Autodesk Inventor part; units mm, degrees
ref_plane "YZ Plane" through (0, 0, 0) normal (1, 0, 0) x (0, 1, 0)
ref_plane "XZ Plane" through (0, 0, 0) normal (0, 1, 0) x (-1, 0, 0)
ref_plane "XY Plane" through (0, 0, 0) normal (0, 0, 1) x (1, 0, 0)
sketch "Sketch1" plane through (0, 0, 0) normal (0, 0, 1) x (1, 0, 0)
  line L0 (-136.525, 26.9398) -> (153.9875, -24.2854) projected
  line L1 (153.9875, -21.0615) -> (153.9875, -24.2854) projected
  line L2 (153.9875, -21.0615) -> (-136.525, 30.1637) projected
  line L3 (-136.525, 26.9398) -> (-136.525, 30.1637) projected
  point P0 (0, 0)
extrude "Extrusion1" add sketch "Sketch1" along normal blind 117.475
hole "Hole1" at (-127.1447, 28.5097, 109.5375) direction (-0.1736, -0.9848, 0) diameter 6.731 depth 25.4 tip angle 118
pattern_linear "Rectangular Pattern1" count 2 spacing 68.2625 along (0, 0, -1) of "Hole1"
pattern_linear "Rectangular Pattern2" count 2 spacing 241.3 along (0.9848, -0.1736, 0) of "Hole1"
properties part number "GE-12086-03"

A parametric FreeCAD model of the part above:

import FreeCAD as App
import Part
import Sketcher

V = App.Vector
Q = App.Units.Quantity


def add_polygon(sketch, points):
    """Adds a closed chain of lines whose ends are joined by coincident constraints."""
    first, n = sketch.GeometryCount, len(points)
    for a, b in zip(points, points[1:] + points[:1]):
        sketch.addGeometry(Part.LineSegment(App.Vector(*a, 0), App.Vector(*b, 0)), False)
    for i in range(n):
        sketch.addConstraint(Sketcher.Constraint("Coincident", first + i, 2, first + (i + 1) % n, 1))

doc = App.newDocument("Part")
body = doc.addObject("PartDesign::Body", "Body")

# Sketch on XY plane
sketch1 = body.newObject("Sketcher::SketchObject", "Sketch")
sketch1.AttachmentSupport = (doc.getObject("XY_Plane"), [""])
sketch1.MapMode = "FlatFace"
add_polygon(sketch1, [(-136.5, 30.2), (-136.5, 26.9), (154, -24.3), (154, -21.1)])  # lines 0-3
sketch1.addConstraint(Sketcher.Constraint("Vertical", 0))
sketch1.addConstraint(Sketcher.Constraint("Vertical", 2))
sketch1.addConstraint(Sketcher.Constraint("Parallel", 1, 3))
sketch1.addConstraint(Sketcher.Constraint("Angle", 1, Q("-10 deg")))
sketch1.addConstraint(Sketcher.Constraint("DistanceX", 0, 2, -1, 1, Q("5.375 in")))
sketch1.addConstraint(Sketcher.Constraint("DistanceX", -1, 1, 1, 2, Q("6.0625 in")))
sketch1.addConstraint(Sketcher.Constraint("DistanceY", 0, 2, 0, 1, 3.224))
sketch1.addConstraint(Sketcher.Constraint("DistanceY", 2, 2, -1, 1, Q("0.8292 in")))
pad1 = body.newObject("PartDesign::Pad", "Pad")
pad1.Profile = sketch1
pad1.Length = Q("4.625 in")

# Sketch on an angled plane
sketch2 = body.newObject("Sketcher::SketchObject", "Sketch001")
sketch2.Placement = App.Placement(V(1.041564, 5.907003, 0), App.Rotation(V(-0.984807753, 0.173648178, 0), V(0, 0, 1), V(0.173648178, 0.984807753, 0), "ZXY"))
sketch2.addGeometry(Part.Circle(V(130.2, 109.5, 0), V(0, 0, 1), 3.4), False)
sketch2.addConstraint(Sketcher.Constraint("Diameter", 0, Q("0.265 in")))
sketch2.addConstraint(Sketcher.Constraint("DistanceY", -1, 1, 0, 3, Q("4.3125 in")))
sketch2.addConstraint(Sketcher.Constraint("DistanceX", -1, 1, 0, 3, 130.1637))
doc.recompute()
hole = body.newObject("PartDesign::Hole", "Hole")
hole.Profile = sketch2
hole.ThreadType = "None"
hole.Diameter = Q("0.265 in")
hole.DepthType = "Dimension"
hole.Depth = Q("1 in")
hole.DrillPoint = "Angled"
hole.DrillPointAngle = 118
doc.recompute()

linearpattern = body.newObject("PartDesign::LinearPattern", "LinearPattern")
linearpattern.Originals = [hole]
linearpattern.Direction = (doc.getObject("Z_Axis"), [""])
linearpattern.Mode = "offset"
linearpattern.Offset = Q("2.6875 in")
linearpattern.Occurrences = 2
linearpattern.Reversed = True
body.Tip = linearpattern
doc.recompute()

datumline = body.newObject("PartDesign::Line", "DatumLine")
datumline.Placement = App.Placement(V(0, 0, 0), App.Rotation(V(0, 0, 1), V(0.984807753, -0.173648178, 0)))
linearpattern2 = body.newObject("PartDesign::LinearPattern", "LinearPattern001")
linearpattern2.Originals = [hole]
linearpattern2.Direction = (datumline, [""])
linearpattern2.Mode = "offset"
linearpattern2.Offset = Q("9.5 in")
linearpattern2.Occurrences = 2
body.Tip = linearpattern2

doc.recompute()
